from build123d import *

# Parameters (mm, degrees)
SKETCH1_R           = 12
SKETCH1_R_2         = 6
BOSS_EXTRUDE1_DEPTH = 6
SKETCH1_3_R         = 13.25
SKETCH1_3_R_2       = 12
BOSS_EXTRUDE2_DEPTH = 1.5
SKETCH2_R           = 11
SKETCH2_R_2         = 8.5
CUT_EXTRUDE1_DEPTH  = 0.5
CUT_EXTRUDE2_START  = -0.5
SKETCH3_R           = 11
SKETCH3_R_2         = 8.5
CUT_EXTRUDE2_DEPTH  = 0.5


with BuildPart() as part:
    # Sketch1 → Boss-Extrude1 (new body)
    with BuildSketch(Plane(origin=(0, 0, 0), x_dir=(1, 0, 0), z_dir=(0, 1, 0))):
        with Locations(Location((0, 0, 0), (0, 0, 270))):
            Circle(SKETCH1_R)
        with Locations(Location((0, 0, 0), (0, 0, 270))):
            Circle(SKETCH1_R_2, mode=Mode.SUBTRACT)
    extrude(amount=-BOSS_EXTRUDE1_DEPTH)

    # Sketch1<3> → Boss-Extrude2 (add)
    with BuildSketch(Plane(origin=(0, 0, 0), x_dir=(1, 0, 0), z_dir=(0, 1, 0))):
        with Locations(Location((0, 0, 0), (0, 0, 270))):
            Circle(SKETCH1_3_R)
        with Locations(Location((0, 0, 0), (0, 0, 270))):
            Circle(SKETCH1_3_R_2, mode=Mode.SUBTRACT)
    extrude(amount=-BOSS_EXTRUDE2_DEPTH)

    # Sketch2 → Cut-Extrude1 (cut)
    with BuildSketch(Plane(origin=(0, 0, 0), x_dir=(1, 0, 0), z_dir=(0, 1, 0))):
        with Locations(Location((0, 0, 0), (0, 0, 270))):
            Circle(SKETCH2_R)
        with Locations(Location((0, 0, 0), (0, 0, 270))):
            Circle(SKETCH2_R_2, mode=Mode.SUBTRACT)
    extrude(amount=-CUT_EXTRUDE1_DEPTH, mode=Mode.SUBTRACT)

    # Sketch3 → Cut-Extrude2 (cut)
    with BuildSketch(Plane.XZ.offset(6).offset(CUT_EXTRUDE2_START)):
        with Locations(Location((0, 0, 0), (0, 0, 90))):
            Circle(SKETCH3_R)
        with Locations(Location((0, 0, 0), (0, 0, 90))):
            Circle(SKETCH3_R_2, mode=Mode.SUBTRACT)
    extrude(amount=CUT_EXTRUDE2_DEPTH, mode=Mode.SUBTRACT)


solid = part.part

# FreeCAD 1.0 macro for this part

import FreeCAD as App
import Part
import Sketcher
from FreeCAD import Vector

doc = App.newDocument("Part")
params = doc.addObject("Spreadsheet::Sheet", "Params")
for row, (alias, value) in enumerate([
    ("sketch1_diameter", "24 mm"),
    ("sketch1_diameter2", "12 mm"),
    ("pad1_length", "6 mm"),
    ("sketch2_diameter", "24 mm"),
    ("sketch2_diameter2", "26.5 mm"),
    ("pad2_length", "1.5 mm"),
    ("sketch3_diameter", "22 mm"),
    ("sketch3_diameter2", "17 mm"),
    ("pocket1_length", "0.5 mm"),
    ("sketch4_diameter", "22 mm"),
    ("sketch4_diameter2", "17 mm"),
    ("pocket2_length", "0.5 mm"),
], start=1):
    params.set(f"A{row}", alias)
    params.set(f"B{row}", "=" + value)
    params.setAlias(f"B{row}", alias)

body = doc.addObject("PartDesign::Body", "Body")

# Sketch on XZ plane
sketch1 = body.newObject("Sketcher::SketchObject", "Sketch")
sketch1.AttachmentSupport = (doc.getObject("XZ_Plane"), [""])
sketch1.MapMode = "FlatFace"
sketch1.addGeometry(Part.Circle(Vector(0, 0, 0), Vector(0, 0, 1), 12), False)
sketch1.addGeometry(Part.Circle(Vector(0, 0, 0), Vector(0, 0, 1), 6), False)
sketch1.addConstraint(Sketcher.Constraint("Coincident", 0, 3, -1, 1))
sketch1.addConstraint(Sketcher.Constraint("Coincident", 1, 3, -1, 1))
sketch1.addConstraint(Sketcher.Constraint("Diameter", 0, 24.0))
sketch1.addConstraint(Sketcher.Constraint("Diameter", 1, 12.0))
sketch1.setExpression("Constraints[2]", "Params.sketch1_diameter")
sketch1.setExpression("Constraints[3]", "Params.sketch1_diameter2")
pad1 = body.newObject("PartDesign::Pad", "Pad")
pad1.Profile = sketch1
pad1.setExpression("Length", "Params.pad1_length")

# Sketch on XZ plane
sketch2 = body.newObject("Sketcher::SketchObject", "Sketch001")
sketch2.AttachmentSupport = (doc.getObject("XZ_Plane"), [""])
sketch2.MapMode = "FlatFace"
sketch2.addGeometry(Part.Circle(Vector(0, 0, 0), Vector(0, 0, 1), 13), False)
sketch2.addGeometry(Part.Circle(Vector(0, 0, 0), Vector(0, 0, 1), 12), False)
sketch2.addConstraint(Sketcher.Constraint("Coincident", 0, 3, -1, 1))
sketch2.addConstraint(Sketcher.Constraint("Coincident", 1, 3, -1, 1))
sketch2.addConstraint(Sketcher.Constraint("Diameter", 1, 24.0))
sketch2.addConstraint(Sketcher.Constraint("Diameter", 0, 26.5))
sketch2.setExpression("Constraints[2]", "Params.sketch2_diameter")
sketch2.setExpression("Constraints[3]", "Params.sketch2_diameter2")
pad2 = body.newObject("PartDesign::Pad", "Pad001")
pad2.Profile = sketch2
pad2.setExpression("Length", "Params.pad2_length")

# Sketch on XZ plane
sketch3 = body.newObject("Sketcher::SketchObject", "Sketch002")
sketch3.AttachmentSupport = (doc.getObject("XZ_Plane"), [""])
sketch3.MapMode = "FlatFace"
sketch3.addGeometry(Part.Circle(Vector(0, 0, 0), Vector(0, 0, 1), 11), False)
sketch3.addGeometry(Part.Circle(Vector(0, 0, 0), Vector(0, 0, 1), 8), False)
sketch3.addConstraint(Sketcher.Constraint("Coincident", 0, 3, -1, 1))
sketch3.addConstraint(Sketcher.Constraint("Coincident", 1, 3, -1, 1))
sketch3.addConstraint(Sketcher.Constraint("Diameter", 0, 22.0))
sketch3.addConstraint(Sketcher.Constraint("Diameter", 1, 17.0))
sketch3.setExpression("Constraints[2]", "Params.sketch3_diameter")
sketch3.setExpression("Constraints[3]", "Params.sketch3_diameter2")
pocket1 = body.newObject("PartDesign::Pocket", "Pocket")
pocket1.Profile = sketch3
pocket1.setExpression("Length", "Params.pocket1_length")
pocket1.Reversed = True

# Sketch on XZ plane
sketch4 = body.newObject("Sketcher::SketchObject", "Sketch003")
sketch4.AttachmentSupport = (doc.getObject("XZ_Plane"), [""])
sketch4.MapMode = "FlatFace"
sketch4.AttachmentOffset = App.Placement(Vector(0, 0, 5.5), App.Rotation())
sketch4.addGeometry(Part.Circle(Vector(0, 0, 0), Vector(0, 0, 1), 11), False)
sketch4.addGeometry(Part.Circle(Vector(0, 0, 0), Vector(0, 0, 1), 8), False)
sketch4.addConstraint(Sketcher.Constraint("Coincident", 0, 3, -1, 1))
sketch4.addConstraint(Sketcher.Constraint("Coincident", 1, 3, -1, 1))
sketch4.addConstraint(Sketcher.Constraint("Diameter", 0, 22.0))
sketch4.addConstraint(Sketcher.Constraint("Diameter", 1, 17.0))
sketch4.setExpression("Constraints[2]", "Params.sketch4_diameter")
sketch4.setExpression("Constraints[3]", "Params.sketch4_diameter2")
pocket2 = body.newObject("PartDesign::Pocket", "Pocket001")
pocket2.Profile = sketch4
pocket2.setExpression("Length", "Params.pocket2_length")
pocket2.Reversed = True

doc.recompute()
